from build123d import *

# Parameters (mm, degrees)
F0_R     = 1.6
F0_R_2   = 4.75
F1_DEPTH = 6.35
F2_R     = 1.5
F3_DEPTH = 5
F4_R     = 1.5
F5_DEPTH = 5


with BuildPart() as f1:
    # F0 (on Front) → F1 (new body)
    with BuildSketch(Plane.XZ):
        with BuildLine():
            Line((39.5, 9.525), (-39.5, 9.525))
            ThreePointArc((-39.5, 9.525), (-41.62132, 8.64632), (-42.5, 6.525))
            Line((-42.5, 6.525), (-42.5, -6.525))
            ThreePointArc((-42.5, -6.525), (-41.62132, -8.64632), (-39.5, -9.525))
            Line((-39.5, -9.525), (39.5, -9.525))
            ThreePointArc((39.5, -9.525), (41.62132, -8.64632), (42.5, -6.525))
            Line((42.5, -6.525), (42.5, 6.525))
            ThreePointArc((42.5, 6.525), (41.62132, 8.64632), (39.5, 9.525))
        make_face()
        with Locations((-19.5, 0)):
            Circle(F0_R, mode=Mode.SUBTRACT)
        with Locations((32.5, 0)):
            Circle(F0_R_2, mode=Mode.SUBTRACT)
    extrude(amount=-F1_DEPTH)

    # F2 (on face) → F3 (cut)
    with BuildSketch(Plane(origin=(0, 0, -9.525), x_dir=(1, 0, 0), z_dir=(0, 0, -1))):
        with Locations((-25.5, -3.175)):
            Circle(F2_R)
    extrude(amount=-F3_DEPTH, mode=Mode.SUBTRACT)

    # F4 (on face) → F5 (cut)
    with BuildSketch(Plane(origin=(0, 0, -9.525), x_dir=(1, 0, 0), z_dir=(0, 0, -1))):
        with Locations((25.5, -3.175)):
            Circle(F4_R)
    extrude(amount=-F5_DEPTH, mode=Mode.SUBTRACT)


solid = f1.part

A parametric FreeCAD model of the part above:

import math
import FreeCAD as App
import Part
import Sketcher

V = App.Vector

doc = App.newDocument("Part")
body = doc.addObject("PartDesign::Body", "Body")

sketch1 = doc.addObject("Sketcher::SketchObject", "Sketch")
body.addObject(sketch1)
sketch1.AttachmentSupport = (doc.XZ_Plane, [""])
sketch1.MapMode = "FlatFace"
sketch1.addGeometry(Part.LineSegment(V(39.5, 9.5, 0), V(-39.5, 9.5, 0)), False)
sketch1.addGeometry(Part.ArcOfCircle(Part.Circle(V(-39.5, 6.5, 0), V(0, 0, 1), 3), math.radians(90), math.radians(180)), False)
sketch1.addGeometry(Part.LineSegment(V(-42.5, 6.5, 0), V(-42.5, -6.5, 0)), False)
sketch1.addGeometry(Part.ArcOfCircle(Part.Circle(V(-39.5, -6.5, 0), V(0, 0, 1), 3), math.radians(-180), math.radians(-90)), False)
sketch1.addGeometry(Part.LineSegment(V(-39.5, -9.5, 0), V(39.5, -9.5, 0)), False)
sketch1.addGeometry(Part.ArcOfCircle(Part.Circle(V(39.5, -6.5, 0), V(0, 0, 1), 3), math.radians(-90), math.radians(0)), False)
sketch1.addGeometry(Part.LineSegment(V(42.5, -6.5, 0), V(42.5, 6.5, 0)), False)
sketch1.addGeometry(Part.ArcOfCircle(Part.Circle(V(39.5, 6.5, 0), V(0, 0, 1), 3), math.radians(0), math.radians(90)), False)
sketch1.addGeometry(Part.Circle(V(-19.5, 0, 0), V(0, 0, 1), 1.6), False)
sketch1.addGeometry(Part.Circle(V(32.5, 0, 0), V(0, 0, 1), 4.8), False)
sketch1.addConstraint(Sketcher.Constraint("Tangent", 0, 2, 1, 1))
sketch1.addConstraint(Sketcher.Constraint("Tangent", 1, 2, 2, 1))
sketch1.addConstraint(Sketcher.Constraint("Tangent", 2, 2, 3, 1))
sketch1.addConstraint(Sketcher.Constraint("Tangent", 3, 2, 4, 1))
sketch1.addConstraint(Sketcher.Constraint("Tangent", 4, 2, 5, 1))
sketch1.addConstraint(Sketcher.Constraint("Tangent", 5, 2, 6, 1))
sketch1.addConstraint(Sketcher.Constraint("Tangent", 6, 2, 7, 1))
sketch1.addConstraint(Sketcher.Constraint("Tangent", 7, 2, 0, 1))
sketch1.addConstraint(Sketcher.Constraint("Horizontal", 0))
sketch1.addConstraint(Sketcher.Constraint("Vertical", 2))
sketch1.addConstraint(Sketcher.Constraint("Horizontal", 4))
sketch1.addConstraint(Sketcher.Constraint("Vertical", 6))
sketch1.addConstraint(Sketcher.Constraint("Equal", 1, 3))
sketch1.addConstraint(Sketcher.Constraint("Equal", 3, 5))
sketch1.addConstraint(Sketcher.Constraint("Equal", 5, 7))
sketch1.addConstraint(Sketcher.Constraint("Symmetric", 1, 3, 5, 3, -1, 1))
sketch1.addConstraint(Sketcher.Constraint("PointOnObject", 8, 3, -1))
sketch1.addConstraint(Sketcher.Constraint("PointOnObject", 9, 3, -1))
sketch1.addConstraint(Sketcher.Constraint("Radius", 1, 3.000001))
sketch1.addConstraint(Sketcher.Constraint("Diameter", 8, 3.2))
sketch1.addConstraint(Sketcher.Constraint("Diameter", 9, 9.5))
sketch1.addConstraint(Sketcher.Constraint("DistanceX", 0, 2, 0, 1, 79.0))
sketch1.addConstraint(Sketcher.Constraint("DistanceX", 1, 3, 8, 3, 19.999999))
sketch1.addConstraint(Sketcher.Constraint("DistanceX", 9, 3, 5, 3, 6.999999))
sketch1.addConstraint(Sketcher.Constraint("DistanceY", 2, 2, 2, 1, 13.05))
pad1 = doc.addObject("PartDesign::Pad", "Pad")
body.addObject(pad1)
pad1.Profile = sketch1
pad1.Length = 6.35
pad1.Reversed = True

sketch2 = doc.addObject("Sketcher::SketchObject", "Sketch001")
body.addObject(sketch2)
sketch2.AttachmentSupport = (doc.XY_Plane, [""])
sketch2.MapMode = "FlatFace"
sketch2.AttachmentOffset = App.Placement(V(0, 0, -9.525), App.Rotation())
sketch2.addGeometry(Part.Circle(V(-25.5, 3.2, 0), V(0, 0, 1), 1.5), False)
sketch2.addConstraint(Sketcher.Constraint("Diameter", 0, 3.0))
sketch2.addConstraint(Sketcher.Constraint("DistanceX", 0, 3, -1, 1, 25.5))
sketch2.addConstraint(Sketcher.Constraint("DistanceY", -1, 1, 0, 3, 3.175))
pocket1 = doc.addObject("PartDesign::Pocket", "Pocket")
body.addObject(pocket1)
pocket1.Profile = sketch2
pocket1.Length = 5
pocket1.Reversed = True

sketch3 = doc.addObject("Sketcher::SketchObject", "Sketch002")
body.addObject(sketch3)
sketch3.AttachmentSupport = (doc.XY_Plane, [""])
sketch3.MapMode = "FlatFace"
sketch3.AttachmentOffset = App.Placement(V(0, 0, -9.525), App.Rotation())
sketch3.addGeometry(Part.Circle(V(25.5, 3.2, 0), V(0, 0, 1), 1.5), False)
sketch3.addConstraint(Sketcher.Constraint("Diameter", 0, 3.0))
sketch3.addConstraint(Sketcher.Constraint("DistanceX", -1, 1, 0, 3, 25.5))
sketch3.addConstraint(Sketcher.Constraint("DistanceY", -1, 1, 0, 3, 3.175))
pocket2 = doc.addObject("PartDesign::Pocket", "Pocket001")
body.addObject(pocket2)
pocket2.Profile = sketch3
pocket2.Length = 5
pocket2.Reversed = True

doc.recompute()
